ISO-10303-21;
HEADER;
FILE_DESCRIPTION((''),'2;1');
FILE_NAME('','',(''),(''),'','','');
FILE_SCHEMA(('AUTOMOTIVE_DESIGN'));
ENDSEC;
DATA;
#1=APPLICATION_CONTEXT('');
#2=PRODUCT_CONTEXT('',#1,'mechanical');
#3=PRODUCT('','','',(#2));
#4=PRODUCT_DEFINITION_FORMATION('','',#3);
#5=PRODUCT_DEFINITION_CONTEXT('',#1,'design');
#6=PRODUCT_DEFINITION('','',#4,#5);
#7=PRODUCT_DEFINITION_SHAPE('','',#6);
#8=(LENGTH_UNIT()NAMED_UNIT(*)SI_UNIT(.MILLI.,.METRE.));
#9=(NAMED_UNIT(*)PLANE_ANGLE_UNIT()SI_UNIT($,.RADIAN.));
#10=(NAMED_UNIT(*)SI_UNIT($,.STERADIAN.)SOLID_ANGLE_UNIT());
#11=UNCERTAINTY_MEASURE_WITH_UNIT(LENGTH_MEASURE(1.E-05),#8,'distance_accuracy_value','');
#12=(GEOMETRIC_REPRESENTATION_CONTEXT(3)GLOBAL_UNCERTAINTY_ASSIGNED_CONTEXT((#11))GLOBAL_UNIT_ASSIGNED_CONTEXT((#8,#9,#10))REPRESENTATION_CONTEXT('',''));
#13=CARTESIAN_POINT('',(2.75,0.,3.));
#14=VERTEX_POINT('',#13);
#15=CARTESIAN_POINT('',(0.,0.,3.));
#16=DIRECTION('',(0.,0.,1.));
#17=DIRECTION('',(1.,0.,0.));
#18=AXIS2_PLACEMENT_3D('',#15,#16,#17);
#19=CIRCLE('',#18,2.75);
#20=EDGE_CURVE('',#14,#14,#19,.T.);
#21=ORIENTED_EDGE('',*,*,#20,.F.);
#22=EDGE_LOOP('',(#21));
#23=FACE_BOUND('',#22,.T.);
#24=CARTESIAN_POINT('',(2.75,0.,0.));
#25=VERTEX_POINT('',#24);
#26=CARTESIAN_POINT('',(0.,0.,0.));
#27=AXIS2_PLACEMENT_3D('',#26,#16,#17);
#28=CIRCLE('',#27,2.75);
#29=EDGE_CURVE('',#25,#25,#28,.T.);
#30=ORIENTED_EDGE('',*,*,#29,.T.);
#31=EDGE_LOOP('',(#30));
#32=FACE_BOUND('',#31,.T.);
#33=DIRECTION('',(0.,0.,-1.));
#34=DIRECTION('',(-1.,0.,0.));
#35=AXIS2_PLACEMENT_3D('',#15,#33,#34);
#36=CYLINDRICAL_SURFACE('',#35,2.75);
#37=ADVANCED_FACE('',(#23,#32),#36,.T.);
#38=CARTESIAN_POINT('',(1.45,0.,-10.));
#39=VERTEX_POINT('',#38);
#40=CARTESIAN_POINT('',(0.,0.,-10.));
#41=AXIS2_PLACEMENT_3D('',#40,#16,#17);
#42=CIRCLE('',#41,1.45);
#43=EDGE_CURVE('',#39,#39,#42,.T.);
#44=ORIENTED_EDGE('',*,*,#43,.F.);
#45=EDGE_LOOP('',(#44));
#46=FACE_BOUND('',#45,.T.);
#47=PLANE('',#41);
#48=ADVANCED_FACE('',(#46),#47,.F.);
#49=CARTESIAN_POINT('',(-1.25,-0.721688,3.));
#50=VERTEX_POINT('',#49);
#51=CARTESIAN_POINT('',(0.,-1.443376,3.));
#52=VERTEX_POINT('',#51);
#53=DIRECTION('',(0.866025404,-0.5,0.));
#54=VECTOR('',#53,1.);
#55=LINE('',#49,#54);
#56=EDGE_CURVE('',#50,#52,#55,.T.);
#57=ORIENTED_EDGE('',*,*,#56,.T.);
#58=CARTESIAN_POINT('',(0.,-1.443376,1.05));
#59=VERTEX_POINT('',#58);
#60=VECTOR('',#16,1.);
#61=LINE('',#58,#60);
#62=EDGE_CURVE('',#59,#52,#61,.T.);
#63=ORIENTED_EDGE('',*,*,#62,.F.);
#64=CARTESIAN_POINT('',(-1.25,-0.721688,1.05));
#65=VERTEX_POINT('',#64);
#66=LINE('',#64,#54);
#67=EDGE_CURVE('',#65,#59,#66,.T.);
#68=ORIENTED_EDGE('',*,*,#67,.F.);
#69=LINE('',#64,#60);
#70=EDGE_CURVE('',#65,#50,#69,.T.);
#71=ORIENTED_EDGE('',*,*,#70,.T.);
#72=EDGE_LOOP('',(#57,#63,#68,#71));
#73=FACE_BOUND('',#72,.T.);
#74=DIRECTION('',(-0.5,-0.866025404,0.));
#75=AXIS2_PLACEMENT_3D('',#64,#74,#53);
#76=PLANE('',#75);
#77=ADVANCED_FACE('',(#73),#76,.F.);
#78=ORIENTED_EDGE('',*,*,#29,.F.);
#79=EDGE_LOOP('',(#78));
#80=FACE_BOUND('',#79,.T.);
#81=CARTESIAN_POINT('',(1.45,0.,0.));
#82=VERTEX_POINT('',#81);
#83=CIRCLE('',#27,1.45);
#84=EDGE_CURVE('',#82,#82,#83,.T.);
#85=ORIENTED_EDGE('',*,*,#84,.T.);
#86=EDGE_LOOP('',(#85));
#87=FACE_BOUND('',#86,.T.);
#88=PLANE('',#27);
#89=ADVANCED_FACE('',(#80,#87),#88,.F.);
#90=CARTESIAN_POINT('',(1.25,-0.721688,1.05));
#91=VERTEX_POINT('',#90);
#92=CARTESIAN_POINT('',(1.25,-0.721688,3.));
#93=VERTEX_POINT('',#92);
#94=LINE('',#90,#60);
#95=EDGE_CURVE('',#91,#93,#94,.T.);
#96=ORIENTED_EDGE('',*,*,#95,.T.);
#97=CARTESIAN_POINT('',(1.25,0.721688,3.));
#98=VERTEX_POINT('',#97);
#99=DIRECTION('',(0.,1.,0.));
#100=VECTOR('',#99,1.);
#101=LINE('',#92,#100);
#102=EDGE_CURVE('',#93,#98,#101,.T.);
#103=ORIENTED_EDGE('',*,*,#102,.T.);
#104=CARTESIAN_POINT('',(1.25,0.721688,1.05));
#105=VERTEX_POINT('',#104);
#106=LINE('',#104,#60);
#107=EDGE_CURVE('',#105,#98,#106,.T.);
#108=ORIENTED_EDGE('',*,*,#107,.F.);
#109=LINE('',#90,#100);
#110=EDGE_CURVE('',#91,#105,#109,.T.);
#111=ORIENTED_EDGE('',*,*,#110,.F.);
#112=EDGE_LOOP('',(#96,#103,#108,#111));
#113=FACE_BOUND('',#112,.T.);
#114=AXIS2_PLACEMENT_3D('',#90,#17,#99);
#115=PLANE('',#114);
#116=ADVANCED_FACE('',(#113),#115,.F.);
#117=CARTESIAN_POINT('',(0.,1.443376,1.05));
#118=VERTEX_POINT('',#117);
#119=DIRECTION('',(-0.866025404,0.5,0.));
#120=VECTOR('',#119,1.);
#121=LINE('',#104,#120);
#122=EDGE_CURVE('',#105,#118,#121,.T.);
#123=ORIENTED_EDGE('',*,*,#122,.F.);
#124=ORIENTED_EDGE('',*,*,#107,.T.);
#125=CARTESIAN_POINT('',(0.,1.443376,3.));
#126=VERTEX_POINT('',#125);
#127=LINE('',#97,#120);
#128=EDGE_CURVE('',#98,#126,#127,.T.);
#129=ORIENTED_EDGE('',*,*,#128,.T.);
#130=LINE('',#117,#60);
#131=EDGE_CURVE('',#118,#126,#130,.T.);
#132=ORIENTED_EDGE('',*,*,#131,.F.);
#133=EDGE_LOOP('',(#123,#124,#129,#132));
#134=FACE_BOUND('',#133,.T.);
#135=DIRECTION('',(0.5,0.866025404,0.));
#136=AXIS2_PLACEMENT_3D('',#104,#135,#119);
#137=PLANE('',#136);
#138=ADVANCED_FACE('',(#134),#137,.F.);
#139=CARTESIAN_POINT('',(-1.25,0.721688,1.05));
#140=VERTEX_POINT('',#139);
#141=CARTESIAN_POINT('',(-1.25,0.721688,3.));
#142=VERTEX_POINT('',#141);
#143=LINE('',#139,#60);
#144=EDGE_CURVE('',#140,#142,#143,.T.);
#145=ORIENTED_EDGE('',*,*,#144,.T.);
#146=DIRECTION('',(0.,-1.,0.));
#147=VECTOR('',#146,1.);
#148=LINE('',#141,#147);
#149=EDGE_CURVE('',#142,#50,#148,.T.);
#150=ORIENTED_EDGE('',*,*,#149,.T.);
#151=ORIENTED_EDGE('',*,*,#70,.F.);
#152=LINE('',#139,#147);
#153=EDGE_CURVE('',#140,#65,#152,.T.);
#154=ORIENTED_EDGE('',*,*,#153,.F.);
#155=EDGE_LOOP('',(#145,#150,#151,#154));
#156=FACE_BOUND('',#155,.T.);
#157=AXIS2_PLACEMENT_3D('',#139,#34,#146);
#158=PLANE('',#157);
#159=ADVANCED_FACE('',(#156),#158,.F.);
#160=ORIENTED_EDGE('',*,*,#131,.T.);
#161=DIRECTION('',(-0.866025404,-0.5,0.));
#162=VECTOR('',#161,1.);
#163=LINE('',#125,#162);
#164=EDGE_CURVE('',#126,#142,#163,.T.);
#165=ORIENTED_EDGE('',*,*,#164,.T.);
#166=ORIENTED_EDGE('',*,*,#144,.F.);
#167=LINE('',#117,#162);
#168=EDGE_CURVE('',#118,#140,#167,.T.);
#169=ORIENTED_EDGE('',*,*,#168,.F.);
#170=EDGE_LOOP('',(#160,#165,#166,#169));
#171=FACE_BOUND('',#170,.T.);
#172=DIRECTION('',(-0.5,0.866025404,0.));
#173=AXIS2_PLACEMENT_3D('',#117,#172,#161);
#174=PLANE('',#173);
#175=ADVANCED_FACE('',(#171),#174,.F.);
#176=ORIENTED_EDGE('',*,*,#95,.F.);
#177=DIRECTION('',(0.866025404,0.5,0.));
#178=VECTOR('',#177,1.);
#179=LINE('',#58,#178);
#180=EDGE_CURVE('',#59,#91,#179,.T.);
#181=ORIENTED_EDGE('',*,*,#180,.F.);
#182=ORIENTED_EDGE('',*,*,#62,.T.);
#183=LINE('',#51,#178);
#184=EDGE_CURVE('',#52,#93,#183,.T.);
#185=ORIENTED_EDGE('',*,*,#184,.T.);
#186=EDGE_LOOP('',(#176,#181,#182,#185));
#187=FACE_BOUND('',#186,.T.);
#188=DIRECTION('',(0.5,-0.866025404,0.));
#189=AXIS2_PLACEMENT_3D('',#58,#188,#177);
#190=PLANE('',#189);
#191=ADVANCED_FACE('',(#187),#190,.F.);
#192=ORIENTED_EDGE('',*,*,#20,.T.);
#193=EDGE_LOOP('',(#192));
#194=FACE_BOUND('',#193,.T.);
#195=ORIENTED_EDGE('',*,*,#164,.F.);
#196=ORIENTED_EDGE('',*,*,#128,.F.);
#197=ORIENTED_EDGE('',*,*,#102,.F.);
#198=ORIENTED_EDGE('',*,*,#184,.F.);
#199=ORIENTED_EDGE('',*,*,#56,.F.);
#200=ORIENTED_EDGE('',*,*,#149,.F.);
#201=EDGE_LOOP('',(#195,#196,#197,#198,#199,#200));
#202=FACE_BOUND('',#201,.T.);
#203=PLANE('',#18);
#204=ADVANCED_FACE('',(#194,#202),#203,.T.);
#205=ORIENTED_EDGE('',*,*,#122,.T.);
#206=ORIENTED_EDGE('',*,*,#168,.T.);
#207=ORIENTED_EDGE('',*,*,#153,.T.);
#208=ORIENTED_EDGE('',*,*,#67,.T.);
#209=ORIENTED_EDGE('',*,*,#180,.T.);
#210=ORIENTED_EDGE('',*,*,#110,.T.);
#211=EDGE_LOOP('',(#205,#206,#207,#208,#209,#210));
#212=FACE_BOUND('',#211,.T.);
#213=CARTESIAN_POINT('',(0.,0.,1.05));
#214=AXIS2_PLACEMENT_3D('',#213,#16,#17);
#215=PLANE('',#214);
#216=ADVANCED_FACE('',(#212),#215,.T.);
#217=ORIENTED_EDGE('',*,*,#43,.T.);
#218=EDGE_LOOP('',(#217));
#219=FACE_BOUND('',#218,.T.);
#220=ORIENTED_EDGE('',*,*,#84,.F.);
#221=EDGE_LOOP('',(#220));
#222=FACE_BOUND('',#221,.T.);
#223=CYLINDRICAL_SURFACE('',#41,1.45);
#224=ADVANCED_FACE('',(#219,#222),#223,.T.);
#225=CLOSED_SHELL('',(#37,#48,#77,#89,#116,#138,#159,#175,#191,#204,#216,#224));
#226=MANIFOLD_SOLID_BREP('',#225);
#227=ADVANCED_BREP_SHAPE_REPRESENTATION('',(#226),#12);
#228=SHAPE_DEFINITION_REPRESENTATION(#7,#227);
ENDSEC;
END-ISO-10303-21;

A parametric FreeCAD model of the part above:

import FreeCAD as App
import Part
import Sketcher

V = App.Vector
Q = App.Units.Quantity


def add_polygon(sketch, points):
    """Adds a closed chain of lines whose ends are joined by coincident constraints."""
    first, n = sketch.GeometryCount, len(points)
    for a, b in zip(points, points[1:] + points[:1]):
        sketch.addGeometry(Part.LineSegment(App.Vector(*a, 0), App.Vector(*b, 0)), False)
    for i in range(n):
        sketch.addConstraint(Sketcher.Constraint("Coincident", first + i, 2, first + (i + 1) % n, 1))

doc = App.newDocument("Part")
body = doc.addObject("PartDesign::Body", "Body")

# Sketch on XY plane
sketch1 = doc.addObject("Sketcher::SketchObject", "Sketch")
body.addObject(sketch1)
sketch1.AttachmentSupport = (doc.XY_Plane, [""])
sketch1.MapMode = "FlatFace"
sketch1.addGeometry(Part.Circle(V(0, 0, 0), V(0, 0, 1), 1.4), False)
sketch1.addConstraint([
    Sketcher.Constraint("Coincident", 0, 3, -1, 1),
    Sketcher.Constraint("Diameter", 0, 2.9),
])
pad1 = doc.addObject("PartDesign::Pad", "Pad")
body.addObject(pad1)
pad1.Profile = sketch1
pad1.Length = 10
pad1.Reversed = True

# Sketch on XY plane
sketch2 = doc.addObject("Sketcher::SketchObject", "Sketch001")
body.addObject(sketch2)
sketch2.AttachmentSupport = (doc.XY_Plane, [""])
sketch2.MapMode = "FlatFace"
sketch2.addGeometry(Part.Circle(V(0, 0, 0), V(0, 0, 1), 2.8), False)
sketch2.addConstraint([
    Sketcher.Constraint("Coincident", 0, 3, -1, 1),
    Sketcher.Constraint("Diameter", 0, 5.5),
])
pad2 = doc.addObject("PartDesign::Pad", "Pad001")
body.addObject(pad2)
pad2.Profile = sketch2
pad2.Length = 3

# Sketch on XY plane
sketch3 = doc.addObject("Sketcher::SketchObject", "Sketch002")
body.addObject(sketch3)
sketch3.AttachmentSupport = (doc.XY_Plane, [""])
sketch3.MapMode = "FlatFace"
sketch3.AttachmentOffset = App.Placement(V(0, 0, 3), App.Rotation())
add_polygon(sketch3, [(1.2, 0.7), (0, 1.4), (-1.2, 0.7), (-1.2, -0.7), (0, -1.4), (1.2, -0.7)])  # lines 0-5
sketch3.addConstraint([
    Sketcher.Constraint("Vertical", 2),
    Sketcher.Constraint("Vertical", 5),
    Sketcher.Constraint("Symmetric", 0, 2, 3, 2, -1, 1),
    Sketcher.Constraint("Symmetric", 1, 2, 4, 2, -1, 1),
    Sketcher.Constraint("PointOnObject", 0, 2, -2),
    Sketcher.Constraint("Parallel", 0, 3),
    Sketcher.Constraint("Horizontal", 2, 2, 4, 2),
    Sketcher.Constraint("Angle", 0, Q("150 deg")),
    Sketcher.Constraint("DistanceX", 2, 2, 4, 2, 2.5),
    Sketcher.Constraint("DistanceY", 2, 2, 2, 1, 1.443376),
])
pocket1 = doc.addObject("PartDesign::Pocket", "Pocket")
body.addObject(pocket1)
pocket1.Profile = sketch3
pocket1.Length = 1.95

doc.recompute()
